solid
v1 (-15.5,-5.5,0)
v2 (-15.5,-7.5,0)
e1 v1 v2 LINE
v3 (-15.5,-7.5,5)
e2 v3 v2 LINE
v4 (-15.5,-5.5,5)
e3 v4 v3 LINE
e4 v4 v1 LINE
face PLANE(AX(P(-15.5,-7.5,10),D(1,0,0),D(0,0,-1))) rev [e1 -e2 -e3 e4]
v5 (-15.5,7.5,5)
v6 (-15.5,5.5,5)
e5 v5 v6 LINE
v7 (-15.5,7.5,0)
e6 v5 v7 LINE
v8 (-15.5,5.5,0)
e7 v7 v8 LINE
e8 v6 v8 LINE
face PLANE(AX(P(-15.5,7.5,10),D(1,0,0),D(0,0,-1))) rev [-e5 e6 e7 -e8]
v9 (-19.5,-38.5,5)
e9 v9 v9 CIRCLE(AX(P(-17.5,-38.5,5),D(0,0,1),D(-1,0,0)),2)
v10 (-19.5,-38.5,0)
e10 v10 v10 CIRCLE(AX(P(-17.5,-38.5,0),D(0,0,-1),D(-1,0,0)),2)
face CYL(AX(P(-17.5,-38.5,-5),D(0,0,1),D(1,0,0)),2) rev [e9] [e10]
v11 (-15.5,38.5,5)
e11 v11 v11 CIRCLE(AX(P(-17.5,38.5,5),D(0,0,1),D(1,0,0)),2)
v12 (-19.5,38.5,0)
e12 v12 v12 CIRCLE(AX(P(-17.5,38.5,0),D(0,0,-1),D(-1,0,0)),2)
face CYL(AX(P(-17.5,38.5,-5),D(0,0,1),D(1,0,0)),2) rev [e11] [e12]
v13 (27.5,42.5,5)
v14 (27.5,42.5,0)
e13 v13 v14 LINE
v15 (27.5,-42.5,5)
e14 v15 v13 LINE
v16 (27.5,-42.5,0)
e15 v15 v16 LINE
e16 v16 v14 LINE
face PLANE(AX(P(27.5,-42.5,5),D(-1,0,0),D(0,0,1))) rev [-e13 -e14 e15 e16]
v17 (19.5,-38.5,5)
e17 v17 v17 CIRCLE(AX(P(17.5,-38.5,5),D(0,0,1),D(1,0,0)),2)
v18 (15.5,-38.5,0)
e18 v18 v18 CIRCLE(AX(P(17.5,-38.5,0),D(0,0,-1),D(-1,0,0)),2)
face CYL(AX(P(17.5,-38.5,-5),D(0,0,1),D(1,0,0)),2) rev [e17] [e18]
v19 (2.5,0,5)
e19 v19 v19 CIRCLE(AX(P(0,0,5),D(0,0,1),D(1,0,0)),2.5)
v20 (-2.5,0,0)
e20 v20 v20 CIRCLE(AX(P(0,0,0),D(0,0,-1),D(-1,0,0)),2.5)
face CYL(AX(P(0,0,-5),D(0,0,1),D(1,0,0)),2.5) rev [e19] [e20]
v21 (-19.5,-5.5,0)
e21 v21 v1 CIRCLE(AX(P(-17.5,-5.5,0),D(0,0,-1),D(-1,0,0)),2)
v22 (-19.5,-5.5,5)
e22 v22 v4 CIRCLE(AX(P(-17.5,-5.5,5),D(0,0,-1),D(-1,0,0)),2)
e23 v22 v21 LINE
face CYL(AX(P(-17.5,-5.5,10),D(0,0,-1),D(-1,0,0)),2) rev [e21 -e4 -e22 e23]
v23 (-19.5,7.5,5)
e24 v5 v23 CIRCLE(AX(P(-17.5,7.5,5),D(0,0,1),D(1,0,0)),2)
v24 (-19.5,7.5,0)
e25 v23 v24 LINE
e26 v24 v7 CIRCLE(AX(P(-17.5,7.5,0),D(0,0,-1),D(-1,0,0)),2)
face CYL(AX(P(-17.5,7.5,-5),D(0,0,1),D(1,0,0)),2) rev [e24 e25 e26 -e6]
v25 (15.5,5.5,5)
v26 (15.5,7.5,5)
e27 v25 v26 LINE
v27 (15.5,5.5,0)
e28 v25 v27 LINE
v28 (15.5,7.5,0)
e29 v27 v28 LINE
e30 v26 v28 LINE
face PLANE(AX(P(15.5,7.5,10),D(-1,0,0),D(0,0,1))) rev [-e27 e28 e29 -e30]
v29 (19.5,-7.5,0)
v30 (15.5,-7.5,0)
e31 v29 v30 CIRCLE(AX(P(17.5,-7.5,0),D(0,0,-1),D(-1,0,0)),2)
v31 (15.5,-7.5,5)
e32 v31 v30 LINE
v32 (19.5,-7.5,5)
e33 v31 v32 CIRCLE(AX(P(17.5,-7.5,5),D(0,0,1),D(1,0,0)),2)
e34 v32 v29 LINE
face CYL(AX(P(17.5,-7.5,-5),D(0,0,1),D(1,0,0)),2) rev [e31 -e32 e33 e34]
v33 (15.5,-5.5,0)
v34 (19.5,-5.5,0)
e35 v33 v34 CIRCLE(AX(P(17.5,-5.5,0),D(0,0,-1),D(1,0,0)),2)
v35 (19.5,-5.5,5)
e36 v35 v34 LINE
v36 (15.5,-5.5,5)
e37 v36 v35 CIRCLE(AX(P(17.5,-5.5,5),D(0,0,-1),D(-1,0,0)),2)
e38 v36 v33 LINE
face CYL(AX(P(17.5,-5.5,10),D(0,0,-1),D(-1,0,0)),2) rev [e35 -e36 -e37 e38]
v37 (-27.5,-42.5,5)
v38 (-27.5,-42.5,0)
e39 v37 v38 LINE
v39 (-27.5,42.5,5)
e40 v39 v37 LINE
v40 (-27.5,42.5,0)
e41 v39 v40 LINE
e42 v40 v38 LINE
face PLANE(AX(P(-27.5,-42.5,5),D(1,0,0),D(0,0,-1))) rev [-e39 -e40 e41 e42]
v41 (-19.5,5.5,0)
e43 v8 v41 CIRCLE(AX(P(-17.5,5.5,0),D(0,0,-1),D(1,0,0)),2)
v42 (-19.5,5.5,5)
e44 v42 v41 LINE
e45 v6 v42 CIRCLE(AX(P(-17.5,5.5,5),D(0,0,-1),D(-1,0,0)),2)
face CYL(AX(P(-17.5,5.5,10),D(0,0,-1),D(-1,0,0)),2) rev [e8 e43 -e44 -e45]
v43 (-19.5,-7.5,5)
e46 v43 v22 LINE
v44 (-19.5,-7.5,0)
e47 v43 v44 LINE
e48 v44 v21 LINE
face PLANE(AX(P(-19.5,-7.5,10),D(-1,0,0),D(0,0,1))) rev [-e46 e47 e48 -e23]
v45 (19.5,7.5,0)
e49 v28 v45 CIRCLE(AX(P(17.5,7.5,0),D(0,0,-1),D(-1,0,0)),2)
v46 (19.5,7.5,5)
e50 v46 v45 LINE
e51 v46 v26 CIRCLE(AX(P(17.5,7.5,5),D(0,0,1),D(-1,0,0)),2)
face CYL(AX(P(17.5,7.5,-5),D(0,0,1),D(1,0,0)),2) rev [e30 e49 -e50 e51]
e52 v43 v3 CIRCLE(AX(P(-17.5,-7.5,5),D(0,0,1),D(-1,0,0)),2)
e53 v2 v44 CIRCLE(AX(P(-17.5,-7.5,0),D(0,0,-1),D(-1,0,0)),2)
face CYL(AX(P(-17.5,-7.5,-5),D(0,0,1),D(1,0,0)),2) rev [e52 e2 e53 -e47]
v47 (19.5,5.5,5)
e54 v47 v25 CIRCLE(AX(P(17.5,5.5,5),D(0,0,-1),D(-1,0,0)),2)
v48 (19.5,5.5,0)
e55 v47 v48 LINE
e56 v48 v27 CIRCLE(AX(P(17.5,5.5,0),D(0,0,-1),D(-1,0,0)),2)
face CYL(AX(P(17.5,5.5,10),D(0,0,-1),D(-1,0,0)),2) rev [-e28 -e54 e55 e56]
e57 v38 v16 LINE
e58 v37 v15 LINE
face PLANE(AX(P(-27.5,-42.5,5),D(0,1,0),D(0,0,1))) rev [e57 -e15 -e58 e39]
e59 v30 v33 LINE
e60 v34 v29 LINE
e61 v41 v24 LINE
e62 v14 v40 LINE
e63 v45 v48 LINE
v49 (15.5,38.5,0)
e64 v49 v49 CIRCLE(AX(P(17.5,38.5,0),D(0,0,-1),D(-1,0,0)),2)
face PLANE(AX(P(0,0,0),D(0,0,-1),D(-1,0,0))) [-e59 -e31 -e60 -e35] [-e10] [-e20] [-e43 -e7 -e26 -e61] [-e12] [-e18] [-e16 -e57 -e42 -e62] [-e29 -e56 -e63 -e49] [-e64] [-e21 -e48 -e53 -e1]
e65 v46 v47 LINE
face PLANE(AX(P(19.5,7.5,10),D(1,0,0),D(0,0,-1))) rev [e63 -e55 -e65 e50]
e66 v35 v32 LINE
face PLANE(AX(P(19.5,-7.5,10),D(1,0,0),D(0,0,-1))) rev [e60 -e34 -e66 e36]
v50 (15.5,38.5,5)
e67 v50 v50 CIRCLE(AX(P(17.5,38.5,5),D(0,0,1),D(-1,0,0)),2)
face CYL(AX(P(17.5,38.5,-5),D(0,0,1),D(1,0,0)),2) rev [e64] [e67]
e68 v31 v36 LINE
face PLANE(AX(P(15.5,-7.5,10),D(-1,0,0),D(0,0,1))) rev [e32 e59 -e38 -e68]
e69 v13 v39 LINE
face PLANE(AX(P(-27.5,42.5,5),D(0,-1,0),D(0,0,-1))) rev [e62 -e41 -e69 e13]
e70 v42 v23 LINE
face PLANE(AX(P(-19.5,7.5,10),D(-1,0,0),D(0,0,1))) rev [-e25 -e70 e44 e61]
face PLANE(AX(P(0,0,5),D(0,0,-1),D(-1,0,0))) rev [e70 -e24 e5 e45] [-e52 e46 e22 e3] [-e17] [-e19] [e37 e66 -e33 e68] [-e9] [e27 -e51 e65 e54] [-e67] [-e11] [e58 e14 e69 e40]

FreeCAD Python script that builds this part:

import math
import FreeCAD as App
import Part
import Sketcher

doc = App.newDocument("Part")
params = doc.addObject("Spreadsheet::Sheet", "Params")
for row, (alias, value) in enumerate([
    ("sketch1_width", "55 mm"),
    ("sketch1_height", "85 mm"),
    ("pad1_length", "5 mm"),
    ("sketch2_diameter", "4 mm"),
    ("pocket1_length", "10 mm"),
    ("sketch3_radius", "2 mm"),
    ("sketch3_height", "2 mm"),
    ("pocket2_length", "10 mm"),
    ("sketch4_diameter", "5 mm"),
    ("pocket3_length", "10 mm"),
], start=1):
    params.set(f"A{row}", alias)
    params.set(f"B{row}", "=" + value)
    params.setAlias(f"B{row}", alias)

body = doc.addObject("PartDesign::Body", "Body")

sketch1 = body.newObject("Sketcher::SketchObject", "Sketch")
sketch1.AttachmentSupport = (doc.getObject("XY_Plane"), [""])
sketch1.MapMode = "FlatFace"
sketch1.addGeometry([
    Part.LineSegment(App.Vector(-28, 42, 0), App.Vector(-28, -42, 0)),
    Part.LineSegment(App.Vector(-28, -42, 0), App.Vector(28, -42, 0)),
    Part.LineSegment(App.Vector(28, -42, 0), App.Vector(28, 42, 0)),
    Part.LineSegment(App.Vector(28, 42, 0), App.Vector(-28, 42, 0)),
], False)
sketch1.addConstraint([
    Sketcher.Constraint("Coincident", 0, 2, 1, 1),
    Sketcher.Constraint("Coincident", 1, 2, 2, 1),
    Sketcher.Constraint("Coincident", 2, 2, 3, 1),
    Sketcher.Constraint("Coincident", 3, 2, 0, 1),
    Sketcher.Constraint("Vertical", 0),
    Sketcher.Constraint("Horizontal", 1),
    Sketcher.Constraint("Vertical", 2),
    Sketcher.Constraint("Horizontal", 3),
    Sketcher.Constraint("Symmetric", 0, 2, 2, 2, -1, 1),
    Sketcher.Constraint("DistanceX", 1, 1, 1, 2, 55.0),
    Sketcher.Constraint("DistanceY", 0, 2, 0, 1, 85.0),
])
sketch1.setExpression("Constraints[9]", "Params.sketch1_width")
sketch1.setExpression("Constraints[10]", "Params.sketch1_height")
pad1 = body.newObject("PartDesign::Pad", "Pad")
pad1.Profile = sketch1
pad1.setExpression("Length", "Params.pad1_length")

sketch2 = body.newObject("Sketcher::SketchObject", "Sketch001")
sketch2.AttachmentSupport = (doc.getObject("XY_Plane"), [""])
sketch2.MapMode = "FlatFace"
sketch2.AttachmentOffset = App.Placement(App.Vector(0, 0, 5), App.Rotation())
sketch2.addGeometry([
    Part.Circle(App.Vector(-17.5, 38.5, 0), App.Vector(0, 0, 1), 2),
    Part.Circle(App.Vector(-17.5, 7.5, 0), App.Vector(0, 0, 1), 2),
    Part.Circle(App.Vector(17.5, 7.5, 0), App.Vector(0, 0, 1), 2),
    Part.Circle(App.Vector(17.5, 38.5, 0), App.Vector(0, 0, 1), 2),
    Part.Circle(App.Vector(17.5, -38.5, 0), App.Vector(0, 0, 1), 2),
    Part.Circle(App.Vector(17.5, -7.5, 0), App.Vector(0, 0, 1), 2),
    Part.Circle(App.Vector(-17.5, -7.5, 0), App.Vector(0, 0, 1), 2),
    Part.Circle(App.Vector(-17.5, -38.5, 0), App.Vector(0, 0, 1), 2),
], False)
sketch2.addConstraint([
    Sketcher.Constraint("Equal", 0, 1),
    Sketcher.Constraint("Equal", 1, 2),
    Sketcher.Constraint("Equal", 2, 3),
    Sketcher.Constraint("Equal", 3, 4),
    Sketcher.Constraint("Equal", 4, 5),
    Sketcher.Constraint("Equal", 5, 6),
    Sketcher.Constraint("Equal", 6, 7),
    Sketcher.Constraint("Symmetric", 0, 3, 4, 3, -1, 1),
    Sketcher.Constraint("Symmetric", 1, 3, 5, 3, -1, 1),
    Sketcher.Constraint("Symmetric", 2, 3, 6, 3, -1, 1),
    Sketcher.Constraint("Symmetric", 3, 3, 7, 3, -1, 1),
    Sketcher.Constraint("Symmetric", 1, 3, 2, 3, -2),
    Sketcher.Constraint("Symmetric", 0, 3, 3, 3, -2),
    Sketcher.Constraint("Vertical", 0, 3, 1, 3),
    Sketcher.Constraint("Diameter", 0, 4.0),
    Sketcher.Constraint("DistanceY", 1, 3, 0, 3, 31.0),
    Sketcher.Constraint("DistanceX", 1, 3, 2, 3, 35.0),
    Sketcher.Constraint("DistanceY", 4, 3, 2, 3, 46.0),
])
sketch2.setExpression("Constraints[14]", "Params.sketch2_diameter")
pocket1 = body.newObject("PartDesign::Pocket", "Pocket")
pocket1.Profile = sketch2
pocket1.setExpression("Length", "Params.pocket1_length")

sketch3 = body.newObject("Sketcher::SketchObject", "Sketch002")
sketch3.AttachmentSupport = (doc.getObject("XY_Plane"), [""])
sketch3.MapMode = "FlatFace"
sketch3.AttachmentOffset = App.Placement(App.Vector(0, 0, 10), App.Rotation())
sketch3.addGeometry([
    Part.LineSegment(App.Vector(19.5, 7.5, 0), App.Vector(19.5, 5.5, 0)),
    Part.ArcOfCircle(Part.Circle(App.Vector(17.5, 5.5, 0), App.Vector(0, 0, 1), 2), math.radians(180), math.radians(360)),
    Part.LineSegment(App.Vector(15.5, 5.5, 0), App.Vector(15.5, 7.5, 0)),
    Part.ArcOfCircle(Part.Circle(App.Vector(17.5, 7.5, 0), App.Vector(0, 0, 1), 2), math.radians(0), math.radians(180)),
    Part.LineSegment(App.Vector(-15.5, 7.5, 0), App.Vector(-15.5, 5.5, 0)),
    Part.ArcOfCircle(Part.Circle(App.Vector(-17.5, 5.5, 0), App.Vector(0, 0, 1), 2), math.radians(180), math.radians(360)),
    Part.LineSegment(App.Vector(-19.5, 5.5, 0), App.Vector(-19.5, 7.5, 0)),
    Part.ArcOfCircle(Part.Circle(App.Vector(-17.5, 7.5, 0), App.Vector(0, 0, 1), 2), math.radians(0), math.radians(180)),
    Part.LineSegment(App.Vector(-19.5, -7.5, 0), App.Vector(-19.5, -5.5, 0)),
    Part.ArcOfCircle(Part.Circle(App.Vector(-17.5, -5.5, 0), App.Vector(0, 0, 1), 2), math.radians(0), math.radians(180)),
    Part.LineSegment(App.Vector(-15.5, -5.5, 0), App.Vector(-15.5, -7.5, 0)),
    Part.ArcOfCircle(Part.Circle(App.Vector(-17.5, -7.5, 0), App.Vector(0, 0, 1), 2), math.radians(180), math.radians(360)),
    Part.LineSegment(App.Vector(15.5, -7.5, 0), App.Vector(15.5, -5.5, 0)),
    Part.ArcOfCircle(Part.Circle(App.Vector(17.5, -5.5, 0), App.Vector(0, 0, 1), 2), math.radians(0), math.radians(180)),
    Part.LineSegment(App.Vector(19.5, -5.5, 0), App.Vector(19.5, -7.5, 0)),
    Part.ArcOfCircle(Part.Circle(App.Vector(17.5, -7.5, 0), App.Vector(0, 0, 1), 2), math.radians(180), math.radians(360)),
], False)
sketch3.addConstraint([
    Sketcher.Constraint("Tangent", 0, 2, 1, 2),
    Sketcher.Constraint("Tangent", 1, 1, 2, 1),
    Sketcher.Constraint("Tangent", 2, 2, 3, 2),
    Sketcher.Constraint("Tangent", 3, 1, 0, 1),
    Sketcher.Constraint("Tangent", 4, 2, 5, 2),
    Sketcher.Constraint("Tangent", 5, 1, 6, 1),
    Sketcher.Constraint("Tangent", 6, 2, 7, 2),
    Sketcher.Constraint("Tangent", 7, 1, 4, 1),
    Sketcher.Constraint("Tangent", 8, 2, 9, 2),
    Sketcher.Constraint("Tangent", 9, 1, 10, 1),
    Sketcher.Constraint("Tangent", 10, 2, 11, 2),
    Sketcher.Constraint("Tangent", 11, 1, 8, 1),
    Sketcher.Constraint("Tangent", 12, 2, 13, 2),
    Sketcher.Constraint("Tangent", 13, 1, 14, 1),
    Sketcher.Constraint("Tangent", 14, 2, 15, 2),
    Sketcher.Constraint("Tangent", 15, 1, 12, 1),
    Sketcher.Constraint("Vertical", 0),
    Sketcher.Constraint("Vertical", 2),
    Sketcher.Constraint("Vertical", 4),
    Sketcher.Constraint("Vertical", 6),
    Sketcher.Constraint("Vertical", 8),
    Sketcher.Constraint("Vertical", 10),
    Sketcher.Constraint("Vertical", 12),
    Sketcher.Constraint("Vertical", 14),
    Sketcher.Constraint("Equal", 3, 5),
    Sketcher.Constraint("Equal", 7, 9),
    Sketcher.Constraint("Equal", 11, 13),
    Sketcher.Constraint("Symmetric", 1, 3, 9, 3, -1, 1),
    Sketcher.Constraint("Symmetric", 5, 3, 13, 3, -1, 1),
    Sketcher.Constraint("Symmetric", 1, 3, 5, 3, -2),
    Sketcher.Constraint("Horizontal", 3, 3, 7, 3),
    Sketcher.Constraint("Horizontal", 11, 3, 15, 3),
    Sketcher.Constraint("Equal", 6, 8),
    Sketcher.Constraint("Radius", 1, 2.0),
    Sketcher.Constraint("DistanceY", 0, 2, 0, 1, 2.0),
    Sketcher.Constraint("DistanceX", 5, 3, 1, 3, 35.0),
    Sketcher.Constraint("DistanceY", 9, 3, 5, 3, 11.0),
])
sketch3.setExpression("Constraints[33]", "Params.sketch3_radius")
sketch3.setExpression("Constraints[34]", "Params.sketch3_height")
pocket2 = body.newObject("PartDesign::Pocket", "Pocket001")
pocket2.Profile = sketch3
pocket2.setExpression("Length", "Params.pocket2_length")

sketch4 = body.newObject("Sketcher::SketchObject", "Sketch003")
sketch4.AttachmentSupport = (doc.getObject("XY_Plane"), [""])
sketch4.MapMode = "FlatFace"
sketch4.AttachmentOffset = App.Placement(App.Vector(0, 0, 5), App.Rotation())
sketch4.addGeometry(Part.Circle(App.Vector(0, 0, 0), App.Vector(0, 0, 1), 2.5), False)
sketch4.addConstraint([
    Sketcher.Constraint("Coincident", 0, 3, -1, 1),
    Sketcher.Constraint("Diameter", 0, 5.0),
])
sketch4.setExpression("Constraints[1]", "Params.sketch4_diameter")
pocket3 = body.newObject("PartDesign::Pocket", "Pocket002")
pocket3.Profile = sketch4
pocket3.setExpression("Length", "Params.pocket3_length")

doc.recompute()
